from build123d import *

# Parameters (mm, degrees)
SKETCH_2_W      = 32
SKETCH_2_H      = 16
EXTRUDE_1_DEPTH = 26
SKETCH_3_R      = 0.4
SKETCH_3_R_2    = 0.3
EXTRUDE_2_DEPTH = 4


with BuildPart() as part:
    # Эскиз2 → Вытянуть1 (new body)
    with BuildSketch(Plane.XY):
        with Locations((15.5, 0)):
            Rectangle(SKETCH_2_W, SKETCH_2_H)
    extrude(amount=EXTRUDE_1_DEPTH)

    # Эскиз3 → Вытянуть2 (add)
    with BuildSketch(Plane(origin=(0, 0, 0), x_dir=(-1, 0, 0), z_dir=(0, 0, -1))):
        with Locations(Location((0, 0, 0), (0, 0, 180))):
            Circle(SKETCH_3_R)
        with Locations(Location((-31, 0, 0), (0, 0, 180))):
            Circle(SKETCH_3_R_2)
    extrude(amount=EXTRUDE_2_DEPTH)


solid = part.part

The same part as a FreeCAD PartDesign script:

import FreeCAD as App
import Part
import Sketcher

V = App.Vector
Q = App.Units.Quantity

doc = App.newDocument("Part")
body = doc.addObject("PartDesign::Body", "Body")

sketch1 = body.newObject("Sketcher::SketchObject", "Sketch")
sketch1.AttachmentSupport = (doc.getObject("XY_Plane"), [""])
sketch1.MapMode = "FlatFace"
sketch1.addGeometry([
    Part.LineSegment(V(-0.5, 8, 0), V(-0.5, -8, 0)),
    Part.LineSegment(V(-0.5, -8, 0), V(31.5, -8, 0)),
    Part.LineSegment(V(31.5, -8, 0), V(31.5, 8, 0)),
    Part.LineSegment(V(31.5, 8, 0), V(-0.5, 8, 0)),
], False)
sketch1.addConstraint([
    Sketcher.Constraint("Coincident", 0, 2, 1, 1),
    Sketcher.Constraint("Coincident", 1, 2, 2, 1),
    Sketcher.Constraint("Coincident", 2, 2, 3, 1),
    Sketcher.Constraint("Coincident", 3, 2, 0, 1),
    Sketcher.Constraint("Vertical", 0),
    Sketcher.Constraint("Horizontal", 1),
    Sketcher.Constraint("Vertical", 2),
    Sketcher.Constraint("Horizontal", 3),
    Sketcher.Constraint("DistanceX", 1, 1, 1, 2, Q("32 mm")),
    Sketcher.Constraint("DistanceY", 0, 2, 0, 1, Q("16 mm")),
    Sketcher.Constraint("DistanceY", 0, 2, -1, 1, Q("8 mm")),
    Sketcher.Constraint("DistanceX", 0, 2, -1, 1, Q("0.5 mm")),
])
pad1 = body.newObject("PartDesign::Pad", "Pad")
pad1.Profile = sketch1
pad1.Length = 26

sketch2 = body.newObject("Sketcher::SketchObject", "Sketch001")
sketch2.AttachmentSupport = (doc.getObject("XY_Plane"), [""])
sketch2.MapMode = "FlatFace"
sketch2.addGeometry([
    Part.Circle(V(0, 0, 0), V(0, 0, 1), 0.4),
    Part.Circle(V(31, 0, 0), V(0, 0, 1), 0.3),
], False)
sketch2.addConstraint([
    Sketcher.Constraint("Coincident", 0, 3, -1, 1),
    Sketcher.Constraint("PointOnObject", 1, 3, -1),
    Sketcher.Constraint("Diameter", 0, Q("0.8 mm")),
    Sketcher.Constraint("Diameter", 1, Q("0.6 mm")),
    Sketcher.Constraint("DistanceX", -1, 1, 1, 3, Q("31 mm")),
])
pad2 = body.newObject("PartDesign::Pad", "Pad001")
pad2.Profile = sketch2
pad2.Length = 4
pad2.Reversed = True

doc.recompute()
